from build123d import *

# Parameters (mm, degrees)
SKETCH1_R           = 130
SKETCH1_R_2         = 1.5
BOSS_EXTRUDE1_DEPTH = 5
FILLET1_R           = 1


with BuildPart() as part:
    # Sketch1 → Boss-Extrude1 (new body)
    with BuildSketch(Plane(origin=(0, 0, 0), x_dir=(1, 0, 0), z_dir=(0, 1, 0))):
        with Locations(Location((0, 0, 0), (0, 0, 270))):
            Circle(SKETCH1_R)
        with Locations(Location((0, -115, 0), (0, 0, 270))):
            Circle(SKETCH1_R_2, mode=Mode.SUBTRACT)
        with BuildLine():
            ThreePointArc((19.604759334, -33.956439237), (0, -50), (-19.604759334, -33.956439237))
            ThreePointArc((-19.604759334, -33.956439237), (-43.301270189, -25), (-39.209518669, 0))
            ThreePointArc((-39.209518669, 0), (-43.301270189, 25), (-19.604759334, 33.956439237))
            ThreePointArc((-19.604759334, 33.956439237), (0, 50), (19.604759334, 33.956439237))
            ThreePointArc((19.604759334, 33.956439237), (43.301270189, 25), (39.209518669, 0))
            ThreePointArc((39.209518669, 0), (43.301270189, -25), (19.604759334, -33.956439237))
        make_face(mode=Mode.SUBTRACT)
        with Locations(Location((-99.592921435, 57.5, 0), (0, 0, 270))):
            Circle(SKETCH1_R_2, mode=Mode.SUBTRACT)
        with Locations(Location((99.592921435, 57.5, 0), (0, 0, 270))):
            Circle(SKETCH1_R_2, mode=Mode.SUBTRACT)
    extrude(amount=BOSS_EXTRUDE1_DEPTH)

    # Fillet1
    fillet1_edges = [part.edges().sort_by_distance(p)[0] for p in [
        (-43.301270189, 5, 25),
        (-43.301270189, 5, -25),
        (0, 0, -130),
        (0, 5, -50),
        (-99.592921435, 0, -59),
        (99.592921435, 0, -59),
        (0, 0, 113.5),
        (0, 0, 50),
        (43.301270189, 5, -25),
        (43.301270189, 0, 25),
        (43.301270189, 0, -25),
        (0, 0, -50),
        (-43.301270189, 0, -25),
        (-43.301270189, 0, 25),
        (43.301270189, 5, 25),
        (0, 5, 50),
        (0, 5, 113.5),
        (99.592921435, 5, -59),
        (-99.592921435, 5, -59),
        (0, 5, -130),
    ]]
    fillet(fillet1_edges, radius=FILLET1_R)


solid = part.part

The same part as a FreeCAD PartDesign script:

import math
import FreeCAD as App
import Part
import Sketcher

V = App.Vector
Q = App.Units.Quantity


def edges_at(feature, points):
    """Names of the edges that pass closest to the given points."""
    edges = feature.Shape.Edges
    near = lambda p: min(range(len(edges)), key=lambda i: edges[i].distToShape(Part.Vertex(*p))[0])
    return sorted({f"Edge{near(p) + 1}" for p in points})

doc = App.newDocument("Part")
body = doc.addObject("PartDesign::Body", "Body")

# Sketch on XZ plane
sketch1 = doc.addObject("Sketcher::SketchObject", "Sketch")
body.addObject(sketch1)
sketch1.AttachmentSupport = (doc.XZ_Plane, [""])
sketch1.MapMode = "FlatFace"
sketch1.addGeometry([
    Part.Circle(V(0, 0, 0), V(0, 0, 1), 130),  # 0
    Part.Circle(V(-99.6, -57.5, 0), V(0, 0, 1), 1.5),  # 1
    Part.ArcOfCircle(Part.Circle(V(26, 15, 0), V(0, 0, 1), 20), math.radians(-49), math.radians(109)),  # 2
    Part.ArcOfCircle(Part.Circle(V(0, 30, 0), V(0, 0, 1), 20), math.radians(11), math.radians(169)),  # 3
    Part.ArcOfCircle(Part.Circle(V(-26, 15, 0), V(0, 0, 1), 20), math.radians(71), math.radians(229)),  # 4
    Part.ArcOfCircle(Part.Circle(V(-26, -15, 0), V(0, 0, 1), 20), math.radians(131), math.radians(289)),  # 5
    Part.ArcOfCircle(Part.Circle(V(0, -30, 0), V(0, 0, 1), 20), math.radians(-169), math.radians(-11)),  # 6
    Part.ArcOfCircle(Part.Circle(V(26, -15, 0), V(0, 0, 1), 20), math.radians(-109), math.radians(49)),  # 7
    Part.Circle(V(99.6, -57.5, 0), V(0, 0, 1), 1.5),  # 8
    Part.Circle(V(0, 115, 0), V(0, 0, 1), 1.5),  # 9
], False)
sketch1.addConstraint([
    Sketcher.Constraint("Coincident", 2, 2, 3, 1),
    Sketcher.Constraint("Coincident", 3, 2, 4, 1),
    Sketcher.Constraint("Coincident", 4, 2, 5, 1),
    Sketcher.Constraint("Coincident", 5, 2, 6, 1),
    Sketcher.Constraint("Coincident", 6, 2, 7, 1),
    Sketcher.Constraint("Coincident", 7, 2, 2, 1),
    Sketcher.Constraint("Coincident", 0, 3, -1, 1),
    Sketcher.Constraint("Equal", 2, 3),
    Sketcher.Constraint("Equal", 3, 4),
    Sketcher.Constraint("Equal", 4, 5),
    Sketcher.Constraint("Equal", 5, 6),
    Sketcher.Constraint("Equal", 6, 7),
    Sketcher.Constraint("Equal", 1, 8),
    Sketcher.Constraint("Equal", 8, 9),
    Sketcher.Constraint("Symmetric", 2, 3, 5, 3, -1, 1),
    Sketcher.Constraint("Symmetric", 3, 3, 6, 3, -1, 1),
    Sketcher.Constraint("Symmetric", 4, 3, 7, 3, -1, 1),
    Sketcher.Constraint("Symmetric", 2, 3, 4, 3, -2),
    Sketcher.Constraint("Symmetric", 1, 3, 8, 3, -2),
    Sketcher.Constraint("PointOnObject", 3, 3, -2),
    Sketcher.Constraint("PointOnObject", 9, 3, -2),
    Sketcher.Constraint("Diameter", 0, Q("260 mm")),
    Sketcher.Constraint("Diameter", 1, Q("3 mm")),
    Sketcher.Constraint("Radius", 2, Q("20 mm")),
    Sketcher.Constraint("DistanceY", -1, 1, 2, 3, Q("15 mm")),
    Sketcher.Constraint("DistanceY", -1, 1, 3, 3, Q("30 mm")),
    Sketcher.Constraint("DistanceY", -1, 1, 9, 3, Q("115 mm")),
    Sketcher.Constraint("DistanceY", 1, 3, -1, 1, Q("57.5 mm")),
    Sketcher.Constraint("DistanceX", 1, 3, -1, 1, Q("99.592921 mm")),
    Sketcher.Constraint("DistanceY", -1, 1, 2, 2, Q("33.956439 mm")),
])
pad1 = doc.addObject("PartDesign::Pad", "Pad")
body.addObject(pad1)
pad1.Profile = sketch1
pad1.Length = 5
pad1.Reversed = True
doc.recompute()

fillet = doc.addObject("PartDesign::Fillet", "Fillet")
body.addObject(fillet)
fillet.Base = (pad1, edges_at(pad1, [
    (-43.301, 5, 25),
    (-43.301, 5, -25),
    (0, 0, -130),
    (0, 5, -50),
    (-99.593, 0, -59),
    (99.593, 0, -59),
    (0, 0, 113.5),
    (0, 0, 50),
    (43.301, 5, -25),
    (43.301, 0, 25),
    (43.301, 0, -25),
    (0, 0, -50),
    (-43.301, 0, -25),
    (-43.301, 0, 25),
    (43.301, 5, 25),
    (0, 5, 50),
    (0, 5, 113.5),
    (99.593, 5, -59),
    (-99.593, 5, -59),
    (0, 5, -130),
]))
fillet.Radius = 1

doc.recompute()
